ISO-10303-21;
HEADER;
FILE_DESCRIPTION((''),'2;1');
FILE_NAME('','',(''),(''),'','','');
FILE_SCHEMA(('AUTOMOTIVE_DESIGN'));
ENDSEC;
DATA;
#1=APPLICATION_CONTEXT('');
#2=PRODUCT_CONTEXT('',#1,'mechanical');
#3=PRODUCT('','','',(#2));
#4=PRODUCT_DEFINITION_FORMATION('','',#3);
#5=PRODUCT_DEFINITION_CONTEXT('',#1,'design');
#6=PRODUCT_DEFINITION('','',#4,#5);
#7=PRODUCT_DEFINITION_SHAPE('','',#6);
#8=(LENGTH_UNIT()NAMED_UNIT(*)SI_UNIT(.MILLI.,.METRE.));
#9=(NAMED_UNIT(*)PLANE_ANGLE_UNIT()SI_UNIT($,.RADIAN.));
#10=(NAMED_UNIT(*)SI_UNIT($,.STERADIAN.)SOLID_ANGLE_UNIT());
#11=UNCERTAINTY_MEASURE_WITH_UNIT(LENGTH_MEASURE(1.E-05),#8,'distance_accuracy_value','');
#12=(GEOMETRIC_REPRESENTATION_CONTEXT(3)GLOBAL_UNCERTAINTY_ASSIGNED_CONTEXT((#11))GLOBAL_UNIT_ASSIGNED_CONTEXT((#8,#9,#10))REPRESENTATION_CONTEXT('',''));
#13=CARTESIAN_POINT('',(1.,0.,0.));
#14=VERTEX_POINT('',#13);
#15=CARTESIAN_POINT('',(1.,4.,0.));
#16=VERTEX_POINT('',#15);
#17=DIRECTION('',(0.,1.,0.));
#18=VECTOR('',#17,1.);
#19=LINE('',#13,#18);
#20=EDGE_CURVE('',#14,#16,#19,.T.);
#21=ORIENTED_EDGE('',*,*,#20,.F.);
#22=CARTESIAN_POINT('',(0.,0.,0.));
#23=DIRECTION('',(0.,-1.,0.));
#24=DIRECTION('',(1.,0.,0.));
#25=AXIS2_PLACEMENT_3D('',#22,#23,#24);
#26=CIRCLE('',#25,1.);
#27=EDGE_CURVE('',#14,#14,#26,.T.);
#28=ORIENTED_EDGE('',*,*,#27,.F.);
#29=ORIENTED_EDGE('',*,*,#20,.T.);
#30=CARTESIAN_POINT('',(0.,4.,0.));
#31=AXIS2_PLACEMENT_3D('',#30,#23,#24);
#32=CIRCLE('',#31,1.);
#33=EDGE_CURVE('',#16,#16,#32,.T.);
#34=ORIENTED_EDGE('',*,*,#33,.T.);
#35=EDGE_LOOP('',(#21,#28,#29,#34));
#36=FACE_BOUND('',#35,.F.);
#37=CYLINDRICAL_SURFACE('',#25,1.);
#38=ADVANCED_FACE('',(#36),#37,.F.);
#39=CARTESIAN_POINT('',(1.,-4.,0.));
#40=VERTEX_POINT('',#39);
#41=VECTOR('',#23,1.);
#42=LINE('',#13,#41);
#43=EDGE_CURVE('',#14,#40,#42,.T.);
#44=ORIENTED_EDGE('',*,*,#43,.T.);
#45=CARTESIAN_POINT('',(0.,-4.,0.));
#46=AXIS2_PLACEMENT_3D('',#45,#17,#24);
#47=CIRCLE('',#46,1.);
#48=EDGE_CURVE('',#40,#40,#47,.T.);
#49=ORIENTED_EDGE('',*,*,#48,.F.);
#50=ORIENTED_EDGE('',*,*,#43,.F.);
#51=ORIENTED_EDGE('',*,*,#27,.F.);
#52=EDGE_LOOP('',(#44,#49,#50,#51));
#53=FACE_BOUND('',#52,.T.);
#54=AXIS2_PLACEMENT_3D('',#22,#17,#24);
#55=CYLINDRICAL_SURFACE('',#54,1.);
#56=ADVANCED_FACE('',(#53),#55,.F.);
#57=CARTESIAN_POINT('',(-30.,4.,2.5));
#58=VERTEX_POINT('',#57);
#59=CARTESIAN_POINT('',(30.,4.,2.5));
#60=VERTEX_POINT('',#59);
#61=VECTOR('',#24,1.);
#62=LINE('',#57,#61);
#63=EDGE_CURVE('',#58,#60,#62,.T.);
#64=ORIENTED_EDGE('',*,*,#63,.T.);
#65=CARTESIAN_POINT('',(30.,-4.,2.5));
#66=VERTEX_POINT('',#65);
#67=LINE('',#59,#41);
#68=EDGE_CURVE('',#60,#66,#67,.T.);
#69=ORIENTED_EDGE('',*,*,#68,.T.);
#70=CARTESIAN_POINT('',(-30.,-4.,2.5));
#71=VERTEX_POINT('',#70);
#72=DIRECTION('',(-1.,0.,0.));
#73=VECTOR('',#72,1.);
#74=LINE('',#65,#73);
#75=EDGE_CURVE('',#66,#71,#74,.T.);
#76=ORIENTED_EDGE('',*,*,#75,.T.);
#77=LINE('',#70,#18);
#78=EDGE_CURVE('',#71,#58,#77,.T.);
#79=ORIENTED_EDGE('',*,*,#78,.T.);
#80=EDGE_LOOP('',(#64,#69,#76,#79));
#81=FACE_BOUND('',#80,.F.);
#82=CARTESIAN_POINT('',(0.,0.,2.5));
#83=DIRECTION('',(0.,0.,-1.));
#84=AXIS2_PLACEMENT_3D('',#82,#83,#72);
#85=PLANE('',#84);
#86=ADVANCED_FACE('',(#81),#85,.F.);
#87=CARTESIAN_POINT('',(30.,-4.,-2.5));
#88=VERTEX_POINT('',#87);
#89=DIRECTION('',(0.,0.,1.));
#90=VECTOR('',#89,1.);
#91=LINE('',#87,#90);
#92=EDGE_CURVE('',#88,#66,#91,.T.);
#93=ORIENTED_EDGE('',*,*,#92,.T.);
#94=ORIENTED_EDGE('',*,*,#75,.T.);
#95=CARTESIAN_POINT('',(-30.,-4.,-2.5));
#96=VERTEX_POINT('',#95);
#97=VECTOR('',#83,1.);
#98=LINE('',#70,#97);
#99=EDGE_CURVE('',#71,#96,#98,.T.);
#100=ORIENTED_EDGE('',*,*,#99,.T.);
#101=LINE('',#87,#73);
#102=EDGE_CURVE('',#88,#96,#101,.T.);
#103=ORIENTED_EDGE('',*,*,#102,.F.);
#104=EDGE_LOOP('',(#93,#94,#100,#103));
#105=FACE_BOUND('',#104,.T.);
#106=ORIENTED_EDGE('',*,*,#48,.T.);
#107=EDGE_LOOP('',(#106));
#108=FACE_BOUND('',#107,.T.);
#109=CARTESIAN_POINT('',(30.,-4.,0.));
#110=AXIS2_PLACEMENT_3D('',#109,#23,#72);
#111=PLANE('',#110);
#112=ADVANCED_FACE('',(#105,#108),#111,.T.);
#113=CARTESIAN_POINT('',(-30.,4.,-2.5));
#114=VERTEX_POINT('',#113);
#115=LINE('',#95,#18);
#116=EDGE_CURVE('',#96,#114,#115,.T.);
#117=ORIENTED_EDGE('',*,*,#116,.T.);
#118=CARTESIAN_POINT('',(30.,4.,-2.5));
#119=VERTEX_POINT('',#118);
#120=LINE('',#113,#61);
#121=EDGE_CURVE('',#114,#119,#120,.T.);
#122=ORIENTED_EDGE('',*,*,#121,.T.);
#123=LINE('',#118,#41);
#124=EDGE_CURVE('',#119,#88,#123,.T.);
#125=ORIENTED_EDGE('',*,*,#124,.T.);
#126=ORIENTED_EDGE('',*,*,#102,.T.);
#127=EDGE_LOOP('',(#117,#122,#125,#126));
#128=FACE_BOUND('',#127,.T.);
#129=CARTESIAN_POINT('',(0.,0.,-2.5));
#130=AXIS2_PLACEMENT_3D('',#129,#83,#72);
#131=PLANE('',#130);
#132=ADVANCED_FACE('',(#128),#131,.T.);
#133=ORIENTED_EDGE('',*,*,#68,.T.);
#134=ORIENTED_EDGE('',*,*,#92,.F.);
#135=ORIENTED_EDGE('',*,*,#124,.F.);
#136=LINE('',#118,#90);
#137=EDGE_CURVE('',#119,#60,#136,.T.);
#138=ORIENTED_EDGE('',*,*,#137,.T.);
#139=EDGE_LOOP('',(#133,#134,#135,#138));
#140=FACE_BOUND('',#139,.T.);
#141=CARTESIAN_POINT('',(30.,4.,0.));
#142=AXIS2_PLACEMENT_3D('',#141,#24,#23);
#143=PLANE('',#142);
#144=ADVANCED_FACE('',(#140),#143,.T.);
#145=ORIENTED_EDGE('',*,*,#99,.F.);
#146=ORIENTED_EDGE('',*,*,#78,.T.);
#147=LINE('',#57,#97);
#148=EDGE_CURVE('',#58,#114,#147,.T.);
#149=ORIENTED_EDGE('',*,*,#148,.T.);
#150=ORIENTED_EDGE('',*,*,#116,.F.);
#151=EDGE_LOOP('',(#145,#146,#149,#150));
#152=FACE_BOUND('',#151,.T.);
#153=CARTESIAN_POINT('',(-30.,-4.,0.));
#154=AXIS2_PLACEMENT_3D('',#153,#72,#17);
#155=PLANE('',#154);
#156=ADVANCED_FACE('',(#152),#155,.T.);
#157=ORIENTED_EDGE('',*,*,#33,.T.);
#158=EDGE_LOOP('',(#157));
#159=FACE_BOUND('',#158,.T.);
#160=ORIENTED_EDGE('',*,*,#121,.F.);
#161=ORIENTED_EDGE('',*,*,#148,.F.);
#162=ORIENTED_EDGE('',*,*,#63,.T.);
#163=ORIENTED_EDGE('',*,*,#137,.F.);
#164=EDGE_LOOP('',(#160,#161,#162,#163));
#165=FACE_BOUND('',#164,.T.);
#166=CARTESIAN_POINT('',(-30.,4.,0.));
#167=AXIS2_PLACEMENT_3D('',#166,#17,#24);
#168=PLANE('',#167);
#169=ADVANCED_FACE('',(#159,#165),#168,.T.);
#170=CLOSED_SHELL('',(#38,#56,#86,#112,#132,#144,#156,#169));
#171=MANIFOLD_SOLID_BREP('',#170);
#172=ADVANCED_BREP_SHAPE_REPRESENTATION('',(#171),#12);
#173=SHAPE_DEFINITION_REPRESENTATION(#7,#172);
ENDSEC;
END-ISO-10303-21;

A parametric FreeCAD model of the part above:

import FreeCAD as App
import Part
import Sketcher

V = App.Vector
Q = App.Units.Quantity

doc = App.newDocument("Part")
body = doc.addObject("PartDesign::Body", "Body")

sketch1 = body.newObject("Sketcher::SketchObject", "Sketch")
sketch1.AttachmentSupport = (doc.getObject("XY_Plane"), [""])
sketch1.MapMode = "FlatFace"
sketch1.addGeometry([
    Part.LineSegment(V(-30, -4, 0), V(30, -4, 0)),
    Part.LineSegment(V(30, -4, 0), V(30, 4, 0)),
    Part.LineSegment(V(30, 4, 0), V(-30, 4, 0)),
    Part.LineSegment(V(-30, 4, 0), V(-30, -4, 0)),
], False)
sketch1.addConstraint([
    Sketcher.Constraint("Coincident", 0, 2, 1, 1),
    Sketcher.Constraint("Coincident", 1, 2, 2, 1),
    Sketcher.Constraint("Coincident", 2, 2, 3, 1),
    Sketcher.Constraint("Coincident", 3, 2, 0, 1),
    Sketcher.Constraint("Horizontal", 0),
    Sketcher.Constraint("Vertical", 1),
    Sketcher.Constraint("Horizontal", 2),
    Sketcher.Constraint("Vertical", 3),
    Sketcher.Constraint("Symmetric", 0, 2, 2, 2, -1, 1),
    Sketcher.Constraint("DistanceX", 0, 1, 0, 2, Q("60 mm")),
    Sketcher.Constraint("DistanceY", 1, 1, 1, 2, Q("8 mm")),
])
pad1 = body.newObject("PartDesign::Pad", "Pad")
pad1.Profile = sketch1
pad1.Length = 5
pad1.Midplane = True

sketch2 = body.newObject("Sketcher::SketchObject", "Sketch001")
sketch2.AttachmentSupport = (doc.getObject("XZ_Plane"), [""])
sketch2.MapMode = "FlatFace"
sketch2.addGeometry(Part.Circle(V(0, 0, 0), V(0, 0, 1), 1), False)
sketch2.addConstraint([
    Sketcher.Constraint("Coincident", 0, 3, -1, 1),
    Sketcher.Constraint("Diameter", 0, Q("2 mm")),
])
pocket1 = body.newObject("PartDesign::Pocket", "Pocket")
pocket1.Profile = sketch2
pocket1.Length = 38.2729
pocket1.Midplane = True

doc.recompute()
